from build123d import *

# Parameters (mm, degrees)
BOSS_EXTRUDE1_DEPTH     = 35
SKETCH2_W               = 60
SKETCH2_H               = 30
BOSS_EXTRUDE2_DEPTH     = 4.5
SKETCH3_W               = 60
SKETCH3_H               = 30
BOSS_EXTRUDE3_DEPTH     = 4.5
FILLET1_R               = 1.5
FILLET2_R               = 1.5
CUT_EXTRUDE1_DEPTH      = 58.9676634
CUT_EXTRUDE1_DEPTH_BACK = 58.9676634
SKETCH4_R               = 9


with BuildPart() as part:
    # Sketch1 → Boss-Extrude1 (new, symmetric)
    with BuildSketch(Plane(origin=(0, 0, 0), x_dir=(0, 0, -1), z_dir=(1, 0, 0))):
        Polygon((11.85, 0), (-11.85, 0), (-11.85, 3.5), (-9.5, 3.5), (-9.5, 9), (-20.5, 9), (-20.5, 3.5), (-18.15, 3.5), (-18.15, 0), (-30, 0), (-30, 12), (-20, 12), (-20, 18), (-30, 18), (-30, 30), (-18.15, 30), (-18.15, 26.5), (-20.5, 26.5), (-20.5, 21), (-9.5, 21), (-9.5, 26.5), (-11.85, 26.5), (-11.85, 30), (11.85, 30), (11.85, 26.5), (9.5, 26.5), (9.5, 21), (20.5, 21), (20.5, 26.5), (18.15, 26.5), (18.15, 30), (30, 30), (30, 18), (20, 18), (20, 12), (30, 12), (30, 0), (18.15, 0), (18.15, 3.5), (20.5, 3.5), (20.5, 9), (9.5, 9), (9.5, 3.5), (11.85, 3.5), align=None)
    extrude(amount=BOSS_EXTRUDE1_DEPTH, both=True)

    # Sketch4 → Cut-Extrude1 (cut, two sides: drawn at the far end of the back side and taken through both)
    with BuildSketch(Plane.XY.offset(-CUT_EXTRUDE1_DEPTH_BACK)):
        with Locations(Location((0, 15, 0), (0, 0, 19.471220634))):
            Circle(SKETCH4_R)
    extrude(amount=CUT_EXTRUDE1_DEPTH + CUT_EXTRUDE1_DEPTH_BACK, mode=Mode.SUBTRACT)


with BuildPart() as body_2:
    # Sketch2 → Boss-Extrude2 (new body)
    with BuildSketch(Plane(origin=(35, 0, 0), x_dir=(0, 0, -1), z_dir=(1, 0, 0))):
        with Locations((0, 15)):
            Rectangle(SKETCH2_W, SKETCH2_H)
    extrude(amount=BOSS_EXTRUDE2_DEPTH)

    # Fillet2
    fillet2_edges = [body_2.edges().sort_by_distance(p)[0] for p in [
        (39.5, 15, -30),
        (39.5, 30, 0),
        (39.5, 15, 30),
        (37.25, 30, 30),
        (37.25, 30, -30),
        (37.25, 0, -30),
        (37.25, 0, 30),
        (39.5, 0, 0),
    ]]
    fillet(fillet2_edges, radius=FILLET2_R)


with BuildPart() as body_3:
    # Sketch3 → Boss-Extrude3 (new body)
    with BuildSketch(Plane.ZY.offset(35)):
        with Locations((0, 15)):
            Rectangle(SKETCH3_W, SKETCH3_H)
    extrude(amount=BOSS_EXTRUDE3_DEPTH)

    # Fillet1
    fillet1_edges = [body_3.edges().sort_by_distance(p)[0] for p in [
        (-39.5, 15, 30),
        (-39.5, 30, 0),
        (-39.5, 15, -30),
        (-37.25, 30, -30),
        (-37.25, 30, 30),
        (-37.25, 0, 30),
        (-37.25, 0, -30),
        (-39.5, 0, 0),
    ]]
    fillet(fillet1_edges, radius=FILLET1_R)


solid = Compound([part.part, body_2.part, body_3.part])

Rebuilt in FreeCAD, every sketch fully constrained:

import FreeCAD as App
import Part
import Sketcher

V = App.Vector
Q = App.Units.Quantity


def edges_at(feature, points):
    """Names of the edges that pass closest to the given points."""
    edges = feature.Shape.Edges
    near = lambda p: min(range(len(edges)), key=lambda i: edges[i].distToShape(Part.Vertex(*p))[0])
    return sorted({f"Edge{near(p) + 1}" for p in points})


def add_polygon(sketch, points):
    """Adds a closed chain of lines whose ends are joined by coincident constraints."""
    first, n = sketch.GeometryCount, len(points)
    for a, b in zip(points, points[1:] + points[:1]):
        sketch.addGeometry(Part.LineSegment(App.Vector(*a, 0), App.Vector(*b, 0)), False)
    for i in range(n):
        sketch.addConstraint(Sketcher.Constraint("Coincident", first + i, 2, first + (i + 1) % n, 1))

doc = App.newDocument("Part")
body = doc.addObject("PartDesign::Body", "Body")

# Sketch on YZ plane
sketch1 = body.newObject("Sketcher::SketchObject", "Sketch")
sketch1.AttachmentSupport = (doc.getObject("YZ_Plane"), [""])
sketch1.MapMode = "FlatFace"
add_polygon(sketch1, [(0, 11.85), (0, -11.85), (3.5, -11.85), (3.5, -9.5), (9, -9.5), (9, -20.5), (3.5, -20.5), (3.5, -18.15), (0, -18.15), (0, -30), (12, -30), (12, -20), (18, -20), (18, -30), (30, -30), (30, -18.15), (26.5, -18.15), (26.5, -20.5), (21, -20.5), (21, -9.5), (26.5, -9.5), (26.5, -11.85), (30, -11.85), (30, 11.85), (26.5, 11.85), (26.5, 9.5), (21, 9.5), (21, 20.5), (26.5, 20.5), (26.5, 18.15), (30, 18.15), (30, 30), (18, 30), (18, 20), (12, 20), (12, 30), (0, 30), (0, 18.15), (3.5, 18.15), (3.5, 20.5), (9, 20.5), (9, 9.5), (3.5, 9.5), (3.5, 11.85)])  # lines 0-43
sketch1.addConstraint([
    Sketcher.Constraint("Vertical", 0),
    Sketcher.Constraint("Horizontal", 1),
    Sketcher.Constraint("Vertical", 2),
    Sketcher.Constraint("Horizontal", 3),
    Sketcher.Constraint("Vertical", 4),
    Sketcher.Constraint("Horizontal", 5),
    Sketcher.Constraint("Vertical", 6),
    Sketcher.Constraint("Horizontal", 7),
    Sketcher.Constraint("Vertical", 8),
    Sketcher.Constraint("Horizontal", 9),
    Sketcher.Constraint("Vertical", 10),
    Sketcher.Constraint("Horizontal", 11),
    Sketcher.Constraint("Vertical", 12),
    Sketcher.Constraint("Horizontal", 13),
    Sketcher.Constraint("Vertical", 14),
    Sketcher.Constraint("Horizontal", 15),
    Sketcher.Constraint("Vertical", 16),
    Sketcher.Constraint("Horizontal", 17),
    Sketcher.Constraint("Vertical", 18),
    Sketcher.Constraint("Horizontal", 19),
    Sketcher.Constraint("Vertical", 20),
    Sketcher.Constraint("Horizontal", 21),
    Sketcher.Constraint("Vertical", 22),
    Sketcher.Constraint("Horizontal", 23),
    Sketcher.Constraint("Vertical", 24),
    Sketcher.Constraint("Horizontal", 25),
    Sketcher.Constraint("Vertical", 26),
    Sketcher.Constraint("Horizontal", 27),
    Sketcher.Constraint("Vertical", 28),
    Sketcher.Constraint("Horizontal", 29),
    Sketcher.Constraint("Vertical", 30),
    Sketcher.Constraint("Horizontal", 31),
    Sketcher.Constraint("Vertical", 32),
    Sketcher.Constraint("Horizontal", 33),
    Sketcher.Constraint("Vertical", 34),
    Sketcher.Constraint("Horizontal", 35),
    Sketcher.Constraint("Vertical", 36),
    Sketcher.Constraint("Horizontal", 37),
    Sketcher.Constraint("Vertical", 38),
    Sketcher.Constraint("Horizontal", 39),
    Sketcher.Constraint("Vertical", 40),
    Sketcher.Constraint("Horizontal", 41),
    Sketcher.Constraint("Vertical", 42),
    Sketcher.Constraint("Horizontal", 43),
    Sketcher.Constraint("Symmetric", 8, 2, 35, 2, -1, 1),
    Sketcher.Constraint("Symmetric", 0, 2, 43, 2, -1, 1),
    Sketcher.Constraint("Symmetric", 20, 2, 23, 2, -1),
    Sketcher.Constraint("Symmetric", 18, 2, 25, 2, -1),
    Sketcher.Constraint("Symmetric", 16, 2, 27, 2, -1),
    Sketcher.Constraint("Symmetric", 14, 2, 29, 2, -1),
    Sketcher.Constraint("Symmetric", 12, 2, 31, 2, -1),
    Sketcher.Constraint("Symmetric", 10, 2, 33, 2, -1),
    Sketcher.Constraint("Symmetric", 7, 2, 36, 2, -1),
    Sketcher.Constraint("Symmetric", 5, 2, 38, 2, -1),
    Sketcher.Constraint("Symmetric", 3, 2, 40, 2, -1),
    Sketcher.Constraint("Horizontal", 9, 2, 12, 2),
    Sketcher.Constraint("Horizontal", 7, 2, 14, 2),
    Sketcher.Constraint("Horizontal", 5, 2, 16, 2),
    Sketcher.Constraint("Horizontal", 3, 2, 18, 2),
    Sketcher.Constraint("Horizontal", 1, 2, 20, 2),
    Sketcher.Constraint("Vertical", 2, 2, 5, 2),
    Sketcher.Constraint("Vertical", 16, 2, 19, 2),
    Sketcher.Constraint("Vertical", 14, 2, 21, 2),
    Sketcher.Constraint("Vertical", 38, 2, 41, 2),
    Sketcher.Constraint("Equal", 9, 13),
    Sketcher.Constraint("Equal", 7, 15),
    Sketcher.Constraint("Equal", 5, 17),
    Sketcher.Constraint("Equal", 2, 6),
    Sketcher.Constraint("DistanceX", 9, 1, 9, 2, Q("12 mm")),
    Sketcher.Constraint("DistanceX", 11, 1, 11, 2, Q("6 mm")),
    Sketcher.Constraint("DistanceY", 4, 2, 4, 1, Q("11 mm")),
    Sketcher.Constraint("DistanceY", 10, 1, 10, 2, Q("10 mm")),
    Sketcher.Constraint("DistanceX", 1, 1, 1, 2, Q("3.5 mm")),
    Sketcher.Constraint("DistanceX", 3, 1, 3, 2, Q("5.5 mm")),
    Sketcher.Constraint("DistanceY", 0, 2, 0, 1, Q("23.7 mm")),
    Sketcher.Constraint("DistanceY", 8, 2, -1, 1, Q("30 mm")),
    Sketcher.Constraint("DistanceY", 19, 2, 24, 2, Q("19 mm")),
])
pad1 = body.newObject("PartDesign::Pad", "Pad")
pad1.Profile = sketch1
pad1.Length = 70
pad1.Midplane = True

# Sketch on XY plane
sketch2 = body.newObject("Sketcher::SketchObject", "Sketch001")
sketch2.AttachmentSupport = (doc.getObject("XY_Plane"), [""])
sketch2.MapMode = "FlatFace"
sketch2.addGeometry(Part.Circle(V(0, 15, 0), V(0, 0, 1), 9), False)
sketch2.addConstraint([
    Sketcher.Constraint("PointOnObject", 0, 3, -2),
    Sketcher.Constraint("Diameter", 0, Q("18 mm")),
    Sketcher.Constraint("DistanceY", -1, 1, 0, 3, Q("15 mm")),
])
pocket1 = body.newObject("PartDesign::Pocket", "Pocket")
pocket1.Profile = sketch2
pocket1.Type = "ThroughAll"
pocket1.Midplane = True
body2 = doc.addObject("PartDesign::Body", "Body001")

# Sketch on YZ plane
sketch3 = body2.newObject("Sketcher::SketchObject", "Sketch002")
sketch3.AttachmentSupport = (doc.getObject("YZ_Plane001"), [""])
sketch3.MapMode = "FlatFace"
sketch3.AttachmentOffset = App.Placement(V(0, 0, 35), App.Rotation())
add_polygon(sketch3, [(30, 30), (0, 30), (0, -30), (30, -30)])  # lines 0-3
sketch3.addConstraint([
    Sketcher.Constraint("Horizontal", 0),
    Sketcher.Constraint("Vertical", 1),
    Sketcher.Constraint("Horizontal", 2),
    Sketcher.Constraint("Vertical", 3),
    Sketcher.Constraint("Symmetric", 0, 2, 1, 2, -1, 1),
    Sketcher.Constraint("DistanceX", 0, 2, 0, 1, Q("30 mm")),
    Sketcher.Constraint("DistanceY", 1, 2, 1, 1, Q("60 mm")),
])
pad2 = body2.newObject("PartDesign::Pad", "Pad001")
pad2.Profile = sketch3
pad2.Length = 4.5
doc.recompute()

fillet = body2.newObject("PartDesign::Fillet", "Fillet")
fillet.Base = (pad2, edges_at(pad2, [
    (39.5, 15, -30),
    (39.5, 30, 0),
    (39.5, 15, 30),
    (37.25, 30, 30),
    (37.25, 30, -30),
    (37.25, 0, -30),
    (37.25, 0, 30),
    (39.5, 0, 0),
]))
fillet.Radius = 1.5
body3 = doc.addObject("PartDesign::Body", "Body002")

# Sketch on YZ plane
sketch4 = body3.newObject("Sketcher::SketchObject", "Sketch003")
sketch4.AttachmentSupport = (doc.getObject("YZ_Plane002"), [""])
sketch4.MapMode = "FlatFace"
sketch4.AttachmentOffset = App.Placement(V(0, 0, -35), App.Rotation())
add_polygon(sketch4, [(30, -30), (0, -30), (0, 30), (30, 30)])  # lines 0-3
sketch4.addConstraint([
    Sketcher.Constraint("Horizontal", 0),
    Sketcher.Constraint("Vertical", 1),
    Sketcher.Constraint("Horizontal", 2),
    Sketcher.Constraint("Vertical", 3),
    Sketcher.Constraint("Symmetric", 0, 2, 1, 2, -1, 1),
    Sketcher.Constraint("DistanceX", 0, 2, 0, 1, Q("30 mm")),
    Sketcher.Constraint("DistanceY", 1, 1, 1, 2, Q("60 mm")),
])
pad3 = body3.newObject("PartDesign::Pad", "Pad002")
pad3.Profile = sketch4
pad3.Length = 4.5
pad3.Reversed = True
doc.recompute()

fillet2 = body3.newObject("PartDesign::Fillet", "Fillet001")
fillet2.Base = (pad3, edges_at(pad3, [
    (-39.5, 15, 30),
    (-39.5, 30, 0),
    (-39.5, 15, -30),
    (-37.25, 30, -30),
    (-37.25, 30, 30),
    (-37.25, 0, 30),
    (-37.25, 0, -30),
    (-39.5, 0, 0),
]))
fillet2.Radius = 1.5

doc.recompute()
